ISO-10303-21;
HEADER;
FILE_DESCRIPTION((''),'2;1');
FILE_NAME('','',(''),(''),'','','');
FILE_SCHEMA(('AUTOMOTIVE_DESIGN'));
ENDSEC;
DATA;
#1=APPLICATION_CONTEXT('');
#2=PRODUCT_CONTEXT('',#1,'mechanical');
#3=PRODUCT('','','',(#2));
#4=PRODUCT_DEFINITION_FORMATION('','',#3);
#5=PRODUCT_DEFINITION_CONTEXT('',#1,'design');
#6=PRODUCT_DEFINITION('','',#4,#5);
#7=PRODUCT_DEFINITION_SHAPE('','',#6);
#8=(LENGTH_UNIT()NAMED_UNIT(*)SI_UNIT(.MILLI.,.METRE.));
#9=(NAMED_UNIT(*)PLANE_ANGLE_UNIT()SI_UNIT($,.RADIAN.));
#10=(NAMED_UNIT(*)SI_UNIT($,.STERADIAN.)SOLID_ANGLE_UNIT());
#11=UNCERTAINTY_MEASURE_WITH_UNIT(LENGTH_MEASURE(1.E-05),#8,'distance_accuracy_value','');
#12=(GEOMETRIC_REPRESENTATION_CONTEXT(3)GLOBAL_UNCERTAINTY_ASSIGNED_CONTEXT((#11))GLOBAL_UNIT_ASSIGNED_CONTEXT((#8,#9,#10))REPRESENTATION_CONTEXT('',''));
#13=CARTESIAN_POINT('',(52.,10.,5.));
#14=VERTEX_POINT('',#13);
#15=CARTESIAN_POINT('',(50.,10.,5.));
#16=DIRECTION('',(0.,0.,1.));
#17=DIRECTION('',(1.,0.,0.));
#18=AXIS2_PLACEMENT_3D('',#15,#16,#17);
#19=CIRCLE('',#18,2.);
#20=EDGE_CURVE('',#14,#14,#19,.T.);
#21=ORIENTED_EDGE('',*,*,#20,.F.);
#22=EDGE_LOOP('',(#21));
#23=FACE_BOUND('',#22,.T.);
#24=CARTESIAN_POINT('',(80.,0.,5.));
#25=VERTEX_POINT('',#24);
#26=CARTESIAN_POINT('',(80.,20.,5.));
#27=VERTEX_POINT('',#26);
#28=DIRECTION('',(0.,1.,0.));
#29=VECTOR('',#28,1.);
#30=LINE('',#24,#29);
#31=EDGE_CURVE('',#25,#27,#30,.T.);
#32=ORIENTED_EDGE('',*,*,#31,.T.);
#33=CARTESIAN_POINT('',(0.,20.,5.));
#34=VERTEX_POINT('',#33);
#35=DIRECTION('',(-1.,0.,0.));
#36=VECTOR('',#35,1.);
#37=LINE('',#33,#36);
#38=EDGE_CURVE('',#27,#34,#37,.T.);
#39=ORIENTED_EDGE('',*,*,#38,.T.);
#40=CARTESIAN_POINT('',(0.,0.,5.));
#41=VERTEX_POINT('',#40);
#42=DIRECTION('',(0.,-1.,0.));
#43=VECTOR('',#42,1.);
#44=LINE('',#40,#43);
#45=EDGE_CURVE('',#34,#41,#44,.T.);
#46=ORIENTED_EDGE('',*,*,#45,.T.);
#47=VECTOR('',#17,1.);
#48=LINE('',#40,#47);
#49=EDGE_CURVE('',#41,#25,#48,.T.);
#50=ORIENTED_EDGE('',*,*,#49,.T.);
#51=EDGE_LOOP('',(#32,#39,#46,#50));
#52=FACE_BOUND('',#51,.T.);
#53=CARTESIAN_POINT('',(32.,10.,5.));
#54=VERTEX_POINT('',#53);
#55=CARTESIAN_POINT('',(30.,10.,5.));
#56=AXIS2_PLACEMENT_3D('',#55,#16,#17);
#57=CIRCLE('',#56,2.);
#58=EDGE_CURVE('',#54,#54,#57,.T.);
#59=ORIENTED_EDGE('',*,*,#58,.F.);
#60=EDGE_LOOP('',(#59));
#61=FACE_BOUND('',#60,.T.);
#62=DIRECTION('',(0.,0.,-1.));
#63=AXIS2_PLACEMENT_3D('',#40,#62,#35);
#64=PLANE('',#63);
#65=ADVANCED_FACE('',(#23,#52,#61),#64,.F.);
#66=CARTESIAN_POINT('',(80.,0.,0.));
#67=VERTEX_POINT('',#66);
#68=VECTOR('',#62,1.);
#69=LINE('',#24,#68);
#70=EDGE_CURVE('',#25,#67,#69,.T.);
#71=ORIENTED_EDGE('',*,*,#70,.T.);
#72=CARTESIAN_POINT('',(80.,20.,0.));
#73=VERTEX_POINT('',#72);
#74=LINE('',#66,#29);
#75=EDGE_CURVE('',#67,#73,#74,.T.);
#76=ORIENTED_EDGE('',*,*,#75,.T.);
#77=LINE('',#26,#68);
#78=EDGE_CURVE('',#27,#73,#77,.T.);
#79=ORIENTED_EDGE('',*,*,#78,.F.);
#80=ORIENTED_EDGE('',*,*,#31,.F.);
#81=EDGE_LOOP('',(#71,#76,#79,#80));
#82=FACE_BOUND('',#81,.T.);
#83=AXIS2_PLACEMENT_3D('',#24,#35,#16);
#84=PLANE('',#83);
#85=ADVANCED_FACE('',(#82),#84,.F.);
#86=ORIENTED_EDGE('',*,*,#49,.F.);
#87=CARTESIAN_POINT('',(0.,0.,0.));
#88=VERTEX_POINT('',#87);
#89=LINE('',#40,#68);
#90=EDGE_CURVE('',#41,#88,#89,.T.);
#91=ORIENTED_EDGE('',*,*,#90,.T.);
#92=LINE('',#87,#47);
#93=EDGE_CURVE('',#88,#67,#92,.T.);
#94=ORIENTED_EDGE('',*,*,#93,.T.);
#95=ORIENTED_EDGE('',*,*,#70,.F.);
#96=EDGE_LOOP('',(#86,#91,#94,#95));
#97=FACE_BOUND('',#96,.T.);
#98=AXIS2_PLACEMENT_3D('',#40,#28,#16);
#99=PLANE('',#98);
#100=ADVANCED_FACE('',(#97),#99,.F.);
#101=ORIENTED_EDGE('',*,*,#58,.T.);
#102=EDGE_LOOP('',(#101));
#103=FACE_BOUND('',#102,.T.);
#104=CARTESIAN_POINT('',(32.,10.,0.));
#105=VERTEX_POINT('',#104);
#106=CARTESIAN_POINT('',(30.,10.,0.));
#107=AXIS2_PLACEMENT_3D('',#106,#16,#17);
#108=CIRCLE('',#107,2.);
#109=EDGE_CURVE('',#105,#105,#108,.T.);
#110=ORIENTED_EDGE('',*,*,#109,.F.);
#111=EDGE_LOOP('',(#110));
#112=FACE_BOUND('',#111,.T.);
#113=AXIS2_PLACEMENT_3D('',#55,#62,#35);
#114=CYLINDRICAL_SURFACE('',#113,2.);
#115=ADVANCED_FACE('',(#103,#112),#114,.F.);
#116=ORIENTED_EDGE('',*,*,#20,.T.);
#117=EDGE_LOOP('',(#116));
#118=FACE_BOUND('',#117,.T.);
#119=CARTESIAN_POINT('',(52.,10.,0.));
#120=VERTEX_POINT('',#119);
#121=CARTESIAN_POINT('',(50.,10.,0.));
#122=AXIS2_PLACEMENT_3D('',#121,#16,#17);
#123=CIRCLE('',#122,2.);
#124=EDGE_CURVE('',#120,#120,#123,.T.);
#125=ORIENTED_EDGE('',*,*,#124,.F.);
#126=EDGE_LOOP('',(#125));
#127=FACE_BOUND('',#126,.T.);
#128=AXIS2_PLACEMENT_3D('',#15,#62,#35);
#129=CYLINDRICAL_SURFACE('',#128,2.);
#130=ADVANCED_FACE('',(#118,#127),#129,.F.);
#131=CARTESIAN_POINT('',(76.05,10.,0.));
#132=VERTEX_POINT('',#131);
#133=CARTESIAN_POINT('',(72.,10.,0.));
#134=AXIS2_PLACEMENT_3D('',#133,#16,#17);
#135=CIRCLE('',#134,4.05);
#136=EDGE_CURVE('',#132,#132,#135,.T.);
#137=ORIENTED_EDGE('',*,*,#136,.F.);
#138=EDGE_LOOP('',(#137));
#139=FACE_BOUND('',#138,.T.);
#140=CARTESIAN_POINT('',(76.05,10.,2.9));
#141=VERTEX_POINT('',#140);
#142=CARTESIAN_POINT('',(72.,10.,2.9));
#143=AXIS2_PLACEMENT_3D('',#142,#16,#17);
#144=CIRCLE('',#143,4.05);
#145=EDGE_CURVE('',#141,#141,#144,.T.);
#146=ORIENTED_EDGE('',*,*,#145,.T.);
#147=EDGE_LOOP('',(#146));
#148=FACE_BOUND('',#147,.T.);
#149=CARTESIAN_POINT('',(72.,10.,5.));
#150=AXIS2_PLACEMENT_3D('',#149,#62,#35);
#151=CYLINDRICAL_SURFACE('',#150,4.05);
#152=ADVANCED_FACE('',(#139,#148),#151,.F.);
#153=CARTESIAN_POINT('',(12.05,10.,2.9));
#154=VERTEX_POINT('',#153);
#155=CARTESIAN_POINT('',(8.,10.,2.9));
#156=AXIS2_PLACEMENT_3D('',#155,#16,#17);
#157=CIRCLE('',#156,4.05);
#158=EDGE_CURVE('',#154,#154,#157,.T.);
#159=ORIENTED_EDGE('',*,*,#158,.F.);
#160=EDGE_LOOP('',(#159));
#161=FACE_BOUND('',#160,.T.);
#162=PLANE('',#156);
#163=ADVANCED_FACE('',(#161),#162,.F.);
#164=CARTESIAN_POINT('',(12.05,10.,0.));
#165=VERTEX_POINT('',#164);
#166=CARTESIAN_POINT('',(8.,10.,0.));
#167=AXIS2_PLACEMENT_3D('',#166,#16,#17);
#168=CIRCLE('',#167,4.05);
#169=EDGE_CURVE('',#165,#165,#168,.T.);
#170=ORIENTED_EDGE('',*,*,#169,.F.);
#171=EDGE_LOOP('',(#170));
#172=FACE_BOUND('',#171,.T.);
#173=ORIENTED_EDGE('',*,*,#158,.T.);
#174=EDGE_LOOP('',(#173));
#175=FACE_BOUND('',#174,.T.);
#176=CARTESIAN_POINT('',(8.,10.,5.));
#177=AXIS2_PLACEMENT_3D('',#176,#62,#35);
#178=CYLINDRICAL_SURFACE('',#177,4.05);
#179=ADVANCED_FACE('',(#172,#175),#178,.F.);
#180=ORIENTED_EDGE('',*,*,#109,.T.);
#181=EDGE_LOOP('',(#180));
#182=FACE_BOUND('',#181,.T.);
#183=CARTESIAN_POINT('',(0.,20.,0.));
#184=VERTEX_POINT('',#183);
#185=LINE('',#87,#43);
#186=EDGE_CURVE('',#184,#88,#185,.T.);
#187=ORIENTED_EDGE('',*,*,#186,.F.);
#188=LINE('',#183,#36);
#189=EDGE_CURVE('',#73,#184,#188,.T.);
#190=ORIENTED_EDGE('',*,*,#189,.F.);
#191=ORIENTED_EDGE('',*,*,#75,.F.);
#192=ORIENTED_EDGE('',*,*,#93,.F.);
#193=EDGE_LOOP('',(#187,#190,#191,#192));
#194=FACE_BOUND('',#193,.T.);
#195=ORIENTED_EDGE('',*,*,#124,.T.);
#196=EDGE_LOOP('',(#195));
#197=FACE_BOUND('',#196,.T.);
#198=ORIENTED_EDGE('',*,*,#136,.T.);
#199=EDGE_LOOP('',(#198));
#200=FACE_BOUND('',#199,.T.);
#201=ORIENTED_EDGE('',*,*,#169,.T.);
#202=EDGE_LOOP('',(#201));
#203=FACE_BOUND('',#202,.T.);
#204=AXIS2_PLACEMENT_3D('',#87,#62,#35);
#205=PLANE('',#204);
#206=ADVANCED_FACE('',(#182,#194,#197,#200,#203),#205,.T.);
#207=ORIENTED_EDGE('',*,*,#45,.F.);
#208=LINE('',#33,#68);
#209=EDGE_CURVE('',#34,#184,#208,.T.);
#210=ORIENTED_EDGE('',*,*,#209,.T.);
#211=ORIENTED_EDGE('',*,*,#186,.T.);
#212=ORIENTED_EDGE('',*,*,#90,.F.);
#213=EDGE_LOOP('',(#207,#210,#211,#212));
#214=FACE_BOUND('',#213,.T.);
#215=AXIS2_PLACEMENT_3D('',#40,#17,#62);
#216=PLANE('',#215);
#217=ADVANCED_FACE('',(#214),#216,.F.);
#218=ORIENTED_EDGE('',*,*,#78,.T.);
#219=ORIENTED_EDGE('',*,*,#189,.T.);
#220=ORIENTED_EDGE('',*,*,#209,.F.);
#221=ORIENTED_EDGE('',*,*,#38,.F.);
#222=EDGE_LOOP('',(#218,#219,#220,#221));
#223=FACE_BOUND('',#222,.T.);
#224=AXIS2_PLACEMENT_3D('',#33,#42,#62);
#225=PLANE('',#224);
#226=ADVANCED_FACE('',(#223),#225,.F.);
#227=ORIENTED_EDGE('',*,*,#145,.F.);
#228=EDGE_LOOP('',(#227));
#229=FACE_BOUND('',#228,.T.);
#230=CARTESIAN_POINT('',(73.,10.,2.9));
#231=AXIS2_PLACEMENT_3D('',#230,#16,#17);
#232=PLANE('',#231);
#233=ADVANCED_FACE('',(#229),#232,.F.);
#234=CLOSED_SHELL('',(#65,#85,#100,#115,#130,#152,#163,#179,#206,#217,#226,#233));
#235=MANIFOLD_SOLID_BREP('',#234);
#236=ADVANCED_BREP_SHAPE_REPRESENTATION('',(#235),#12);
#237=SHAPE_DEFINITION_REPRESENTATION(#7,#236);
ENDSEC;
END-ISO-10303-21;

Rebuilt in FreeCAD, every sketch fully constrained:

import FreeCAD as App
import Part
import Sketcher
Q = App.Units.Quantity


def add_polygon(sketch, points):
    """Adds a closed chain of lines whose ends are joined by coincident constraints."""
    first, n = sketch.GeometryCount, len(points)
    for a, b in zip(points, points[1:] + points[:1]):
        sketch.addGeometry(Part.LineSegment(App.Vector(*a, 0), App.Vector(*b, 0)), False)
    for i in range(n):
        sketch.addConstraint(Sketcher.Constraint("Coincident", first + i, 2, first + (i + 1) % n, 1))

doc = App.newDocument("Part")
params = doc.addObject("Spreadsheet::Sheet", "Params")
for row, (alias, value) in enumerate([
    ("sketch1_diameter", "4 mm"),
    ("sketch1_diameter2", "8.1 mm"),
    ("sketch1_width", "80 mm"),
    ("sketch1_height", "20 mm"),
    ("pad1_length", "5 mm"),
    ("sketch2_diameter", "12 mm"),
    ("pad2_length", "2.1 mm"),
], start=1):
    params.set(f"A{row}", alias)
    params.set(f"B{row}", "=" + value)
    params.setAlias(f"B{row}", alias)

body = doc.addObject("PartDesign::Body", "Body")

sketch1 = doc.addObject("Sketcher::SketchObject", "Sketch")
body.addObject(sketch1)
sketch1.AttachmentSupport = (doc.XY_Plane, [""])
sketch1.MapMode = "FlatFace"
add_polygon(sketch1, [(0, 20), (0, 0), (80, 0), (80, 20)])
sketch1.addGeometry(Part.Circle(App.Vector(8, 10, 0), App.Vector(0, 0, 1), 4.05), False)
sketch1.addGeometry(Part.Circle(App.Vector(30, 10, 0), App.Vector(0, 0, 1), 2), False)
sketch1.addGeometry(Part.Circle(App.Vector(50, 10, 0), App.Vector(0, 0, 1), 2), False)
sketch1.addGeometry(Part.Circle(App.Vector(72, 10, 0), App.Vector(0, 0, 1), 4.05), False)
sketch1.addConstraint(Sketcher.Constraint("Vertical", 0))
sketch1.addConstraint(Sketcher.Constraint("Horizontal", 1))
sketch1.addConstraint(Sketcher.Constraint("Vertical", 2))
sketch1.addConstraint(Sketcher.Constraint("Horizontal", 3))
sketch1.addConstraint(Sketcher.Constraint("Coincident", 0, 2, -1, 1))
sketch1.addConstraint(Sketcher.Constraint("Equal", 5, 6))
sketch1.addConstraint(Sketcher.Constraint("Equal", 4, 7))
sketch1.addConstraint(Sketcher.Constraint("Horizontal", 4, 3, 5, 3))
sketch1.addConstraint(Sketcher.Constraint("Horizontal", 5, 3, 6, 3))
sketch1.addConstraint(Sketcher.Constraint("Horizontal", 6, 3, 7, 3))
sketch1.addConstraint(Sketcher.Constraint("Diameter", 5, Q("4 mm")))
sketch1.addConstraint(Sketcher.Constraint("Diameter", 4, Q("8.1 mm")))
sketch1.addConstraint(Sketcher.Constraint("DistanceX", 1, 1, 1, 2, Q("80 mm")))
sketch1.addConstraint(Sketcher.Constraint("DistanceY", 0, 2, 0, 1, Q("20 mm")))
sketch1.addConstraint(Sketcher.Constraint("DistanceX", -1, 1, 4, 3, Q("8 mm")))
sketch1.addConstraint(Sketcher.Constraint("DistanceY", -1, 1, 4, 3, Q("10 mm")))
sketch1.addConstraint(Sketcher.Constraint("DistanceX", -1, 1, 5, 3, Q("30 mm")))
sketch1.addConstraint(Sketcher.Constraint("DistanceX", -1, 1, 6, 3, Q("50 mm")))
sketch1.addConstraint(Sketcher.Constraint("DistanceX", -1, 1, 7, 3, Q("72 mm")))
sketch1.setExpression("Constraints[14]", "Params.sketch1_diameter")
sketch1.setExpression("Constraints[15]", "Params.sketch1_diameter2")
sketch1.setExpression("Constraints[16]", "Params.sketch1_width")
sketch1.setExpression("Constraints[17]", "Params.sketch1_height")
pad1 = doc.addObject("PartDesign::Pad", "Pad")
body.addObject(pad1)
pad1.Profile = sketch1
pad1.setExpression("Length", "Params.pad1_length")

sketch2 = doc.addObject("Sketcher::SketchObject", "Sketch001")
body.addObject(sketch2)
sketch2.AttachmentSupport = (doc.XY_Plane, [""])
sketch2.MapMode = "FlatFace"
sketch2.AttachmentOffset = App.Placement(App.Vector(0, 0, 5), App.Rotation())
sketch2.addGeometry(Part.Circle(App.Vector(8, 10, 0), App.Vector(0, 0, 1), 6), False)
sketch2.addGeometry(Part.Circle(App.Vector(73, 10, 0), App.Vector(0, 0, 1), 6), False)
sketch2.addConstraint(Sketcher.Constraint("Equal", 0, 1))
sketch2.addConstraint(Sketcher.Constraint("Horizontal", 0, 3, 1, 3))
sketch2.addConstraint(Sketcher.Constraint("Diameter", 0, Q("12 mm")))
sketch2.addConstraint(Sketcher.Constraint("DistanceX", -1, 1, 0, 3, Q("8 mm")))
sketch2.addConstraint(Sketcher.Constraint("DistanceY", -1, 1, 0, 3, Q("10 mm")))
sketch2.addConstraint(Sketcher.Constraint("DistanceX", -1, 1, 1, 3, Q("73 mm")))
sketch2.setExpression("Constraints[2]", "Params.sketch2_diameter")
pad2 = doc.addObject("PartDesign::Pad", "Pad001")
body.addObject(pad2)
pad2.Profile = sketch2
pad2.setExpression("Length", "Params.pad2_length")
pad2.Reversed = True

doc.recompute()
